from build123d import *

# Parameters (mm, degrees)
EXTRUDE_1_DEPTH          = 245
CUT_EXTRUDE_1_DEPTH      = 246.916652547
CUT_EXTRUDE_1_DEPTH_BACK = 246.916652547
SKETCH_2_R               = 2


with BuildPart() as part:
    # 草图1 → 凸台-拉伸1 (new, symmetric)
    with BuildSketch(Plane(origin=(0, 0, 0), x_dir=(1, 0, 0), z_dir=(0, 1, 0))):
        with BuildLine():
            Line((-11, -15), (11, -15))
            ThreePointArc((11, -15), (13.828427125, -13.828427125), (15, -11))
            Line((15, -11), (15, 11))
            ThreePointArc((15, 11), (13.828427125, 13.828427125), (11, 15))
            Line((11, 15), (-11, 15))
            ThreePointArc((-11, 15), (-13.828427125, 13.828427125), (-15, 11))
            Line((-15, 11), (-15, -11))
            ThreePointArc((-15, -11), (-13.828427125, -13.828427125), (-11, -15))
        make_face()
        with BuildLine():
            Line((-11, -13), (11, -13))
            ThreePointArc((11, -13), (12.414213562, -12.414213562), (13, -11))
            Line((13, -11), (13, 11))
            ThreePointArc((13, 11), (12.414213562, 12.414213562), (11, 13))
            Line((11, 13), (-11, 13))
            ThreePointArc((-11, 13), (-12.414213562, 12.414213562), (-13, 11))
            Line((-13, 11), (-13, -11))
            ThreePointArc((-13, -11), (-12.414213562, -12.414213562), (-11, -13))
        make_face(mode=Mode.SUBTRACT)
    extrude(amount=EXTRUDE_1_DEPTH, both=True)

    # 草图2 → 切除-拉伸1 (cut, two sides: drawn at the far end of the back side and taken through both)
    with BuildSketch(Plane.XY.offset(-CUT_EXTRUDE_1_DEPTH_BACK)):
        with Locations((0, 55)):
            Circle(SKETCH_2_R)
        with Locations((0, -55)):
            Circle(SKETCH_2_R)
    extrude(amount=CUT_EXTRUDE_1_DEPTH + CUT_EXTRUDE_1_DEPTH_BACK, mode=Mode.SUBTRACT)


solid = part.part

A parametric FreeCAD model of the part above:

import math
import FreeCAD as App
import Part
import Sketcher
from FreeCAD import Vector
Q = App.Units.Quantity

doc = App.newDocument("Part")
body = doc.addObject("PartDesign::Body", "Body")

# Sketch on XZ plane
sketch1 = body.newObject("Sketcher::SketchObject", "Sketch")
sketch1.AttachmentSupport = (doc.getObject("XZ_Plane"), [""])
sketch1.MapMode = "FlatFace"
sketch1.addGeometry([
    Part.LineSegment(Vector(-11, 15, 0), Vector(11, 15, 0)),  # 0
    Part.ArcOfCircle(Part.Circle(Vector(11, 11, 0), Vector(0, 0, 1), 4), math.radians(0), math.radians(90)),  # 1
    Part.LineSegment(Vector(15, 11, 0), Vector(15, -11, 0)),  # 2
    Part.ArcOfCircle(Part.Circle(Vector(11, -11, 0), Vector(0, 0, 1), 4), math.radians(-90), math.radians(0)),  # 3
    Part.LineSegment(Vector(11, -15, 0), Vector(-11, -15, 0)),  # 4
    Part.ArcOfCircle(Part.Circle(Vector(-11, -11, 0), Vector(0, 0, 1), 4), math.radians(180), math.radians(270)),  # 5
    Part.LineSegment(Vector(-15, -11, 0), Vector(-15, 11, 0)),  # 6
    Part.ArcOfCircle(Part.Circle(Vector(-11, 11, 0), Vector(0, 0, 1), 4), math.radians(90), math.radians(180)),  # 7
    Part.LineSegment(Vector(11, 13, 0), Vector(-11, 13, 0)),  # 8
    Part.ArcOfCircle(Part.Circle(Vector(-11, 11, 0), Vector(0, 0, 1), 2), math.radians(90), math.radians(180)),  # 9
    Part.LineSegment(Vector(-13, 11, 0), Vector(-13, -11, 0)),  # 10
    Part.ArcOfCircle(Part.Circle(Vector(-11, -11, 0), Vector(0, 0, 1), 2), math.radians(-180), math.radians(-90)),  # 11
    Part.LineSegment(Vector(-11, -13, 0), Vector(11, -13, 0)),  # 12
    Part.ArcOfCircle(Part.Circle(Vector(11, -11, 0), Vector(0, 0, 1), 2), math.radians(-90), math.radians(0)),  # 13
    Part.LineSegment(Vector(13, -11, 0), Vector(13, 11, 0)),  # 14
    Part.ArcOfCircle(Part.Circle(Vector(11, 11, 0), Vector(0, 0, 1), 2), math.radians(0), math.radians(90)),  # 15
], False)
sketch1.addConstraint([
    Sketcher.Constraint("Tangent", 0, 2, 1, 2),
    Sketcher.Constraint("Tangent", 1, 1, 2, 1),
    Sketcher.Constraint("Tangent", 2, 2, 3, 2),
    Sketcher.Constraint("Tangent", 3, 1, 4, 1),
    Sketcher.Constraint("Tangent", 4, 2, 5, 2),
    Sketcher.Constraint("Tangent", 5, 1, 6, 1),
    Sketcher.Constraint("Tangent", 6, 2, 7, 2),
    Sketcher.Constraint("Tangent", 7, 1, 0, 1),
    Sketcher.Constraint("Tangent", 8, 2, 9, 1),
    Sketcher.Constraint("Tangent", 9, 2, 10, 1),
    Sketcher.Constraint("Tangent", 10, 2, 11, 1),
    Sketcher.Constraint("Tangent", 11, 2, 12, 1),
    Sketcher.Constraint("Tangent", 12, 2, 13, 1),
    Sketcher.Constraint("Tangent", 13, 2, 14, 1),
    Sketcher.Constraint("Tangent", 14, 2, 15, 1),
    Sketcher.Constraint("Tangent", 15, 2, 8, 1),
    Sketcher.Constraint("Horizontal", 0),
    Sketcher.Constraint("Vertical", 2),
    Sketcher.Constraint("Horizontal", 4),
    Sketcher.Constraint("Vertical", 6),
    Sketcher.Constraint("Horizontal", 8),
    Sketcher.Constraint("Vertical", 10),
    Sketcher.Constraint("Horizontal", 12),
    Sketcher.Constraint("Vertical", 14),
    Sketcher.Constraint("Coincident", 9, 3, 7, 3),
    Sketcher.Constraint("Coincident", 11, 3, 5, 3),
    Sketcher.Constraint("Coincident", 13, 3, 3, 3),
    Sketcher.Constraint("Equal", 1, 3),
    Sketcher.Constraint("Equal", 3, 5),
    Sketcher.Constraint("Equal", 5, 7),
    Sketcher.Constraint("Equal", 13, 15),
    Sketcher.Constraint("Symmetric", 1, 3, 5, 3, -1, 1),
    Sketcher.Constraint("Equal", 12, 2),
    Sketcher.Constraint("Radius", 1, Q("4 mm")),
    Sketcher.Constraint("Radius", 9, Q("2 mm")),
    Sketcher.Constraint("DistanceX", 0, 1, 0, 2, Q("22 mm")),
])
pad1 = body.newObject("PartDesign::Pad", "Pad")
pad1.Profile = sketch1
pad1.Length = 490
pad1.Midplane = True

# Sketch on XY plane
sketch2 = body.newObject("Sketcher::SketchObject", "Sketch001")
sketch2.AttachmentSupport = (doc.getObject("XY_Plane"), [""])
sketch2.MapMode = "FlatFace"
sketch2.addGeometry([
    Part.Circle(Vector(0, 55, 0), Vector(0, 0, 1), 2),
    Part.Circle(Vector(0, -55, 0), Vector(0, 0, 1), 2),
], False)
sketch2.addConstraint([
    Sketcher.Constraint("Equal", 0, 1),
    Sketcher.Constraint("Symmetric", 0, 3, 1, 3, -1, 1),
    Sketcher.Constraint("PointOnObject", 0, 3, -2),
    Sketcher.Constraint("Diameter", 0, Q("4 mm")),
    Sketcher.Constraint("DistanceY", -1, 1, 0, 3, Q("55 mm")),
])
pocket1 = body.newObject("PartDesign::Pocket", "Pocket")
pocket1.Profile = sketch2
pocket1.Type = "ThroughAll"
pocket1.Midplane = True

doc.recompute()
